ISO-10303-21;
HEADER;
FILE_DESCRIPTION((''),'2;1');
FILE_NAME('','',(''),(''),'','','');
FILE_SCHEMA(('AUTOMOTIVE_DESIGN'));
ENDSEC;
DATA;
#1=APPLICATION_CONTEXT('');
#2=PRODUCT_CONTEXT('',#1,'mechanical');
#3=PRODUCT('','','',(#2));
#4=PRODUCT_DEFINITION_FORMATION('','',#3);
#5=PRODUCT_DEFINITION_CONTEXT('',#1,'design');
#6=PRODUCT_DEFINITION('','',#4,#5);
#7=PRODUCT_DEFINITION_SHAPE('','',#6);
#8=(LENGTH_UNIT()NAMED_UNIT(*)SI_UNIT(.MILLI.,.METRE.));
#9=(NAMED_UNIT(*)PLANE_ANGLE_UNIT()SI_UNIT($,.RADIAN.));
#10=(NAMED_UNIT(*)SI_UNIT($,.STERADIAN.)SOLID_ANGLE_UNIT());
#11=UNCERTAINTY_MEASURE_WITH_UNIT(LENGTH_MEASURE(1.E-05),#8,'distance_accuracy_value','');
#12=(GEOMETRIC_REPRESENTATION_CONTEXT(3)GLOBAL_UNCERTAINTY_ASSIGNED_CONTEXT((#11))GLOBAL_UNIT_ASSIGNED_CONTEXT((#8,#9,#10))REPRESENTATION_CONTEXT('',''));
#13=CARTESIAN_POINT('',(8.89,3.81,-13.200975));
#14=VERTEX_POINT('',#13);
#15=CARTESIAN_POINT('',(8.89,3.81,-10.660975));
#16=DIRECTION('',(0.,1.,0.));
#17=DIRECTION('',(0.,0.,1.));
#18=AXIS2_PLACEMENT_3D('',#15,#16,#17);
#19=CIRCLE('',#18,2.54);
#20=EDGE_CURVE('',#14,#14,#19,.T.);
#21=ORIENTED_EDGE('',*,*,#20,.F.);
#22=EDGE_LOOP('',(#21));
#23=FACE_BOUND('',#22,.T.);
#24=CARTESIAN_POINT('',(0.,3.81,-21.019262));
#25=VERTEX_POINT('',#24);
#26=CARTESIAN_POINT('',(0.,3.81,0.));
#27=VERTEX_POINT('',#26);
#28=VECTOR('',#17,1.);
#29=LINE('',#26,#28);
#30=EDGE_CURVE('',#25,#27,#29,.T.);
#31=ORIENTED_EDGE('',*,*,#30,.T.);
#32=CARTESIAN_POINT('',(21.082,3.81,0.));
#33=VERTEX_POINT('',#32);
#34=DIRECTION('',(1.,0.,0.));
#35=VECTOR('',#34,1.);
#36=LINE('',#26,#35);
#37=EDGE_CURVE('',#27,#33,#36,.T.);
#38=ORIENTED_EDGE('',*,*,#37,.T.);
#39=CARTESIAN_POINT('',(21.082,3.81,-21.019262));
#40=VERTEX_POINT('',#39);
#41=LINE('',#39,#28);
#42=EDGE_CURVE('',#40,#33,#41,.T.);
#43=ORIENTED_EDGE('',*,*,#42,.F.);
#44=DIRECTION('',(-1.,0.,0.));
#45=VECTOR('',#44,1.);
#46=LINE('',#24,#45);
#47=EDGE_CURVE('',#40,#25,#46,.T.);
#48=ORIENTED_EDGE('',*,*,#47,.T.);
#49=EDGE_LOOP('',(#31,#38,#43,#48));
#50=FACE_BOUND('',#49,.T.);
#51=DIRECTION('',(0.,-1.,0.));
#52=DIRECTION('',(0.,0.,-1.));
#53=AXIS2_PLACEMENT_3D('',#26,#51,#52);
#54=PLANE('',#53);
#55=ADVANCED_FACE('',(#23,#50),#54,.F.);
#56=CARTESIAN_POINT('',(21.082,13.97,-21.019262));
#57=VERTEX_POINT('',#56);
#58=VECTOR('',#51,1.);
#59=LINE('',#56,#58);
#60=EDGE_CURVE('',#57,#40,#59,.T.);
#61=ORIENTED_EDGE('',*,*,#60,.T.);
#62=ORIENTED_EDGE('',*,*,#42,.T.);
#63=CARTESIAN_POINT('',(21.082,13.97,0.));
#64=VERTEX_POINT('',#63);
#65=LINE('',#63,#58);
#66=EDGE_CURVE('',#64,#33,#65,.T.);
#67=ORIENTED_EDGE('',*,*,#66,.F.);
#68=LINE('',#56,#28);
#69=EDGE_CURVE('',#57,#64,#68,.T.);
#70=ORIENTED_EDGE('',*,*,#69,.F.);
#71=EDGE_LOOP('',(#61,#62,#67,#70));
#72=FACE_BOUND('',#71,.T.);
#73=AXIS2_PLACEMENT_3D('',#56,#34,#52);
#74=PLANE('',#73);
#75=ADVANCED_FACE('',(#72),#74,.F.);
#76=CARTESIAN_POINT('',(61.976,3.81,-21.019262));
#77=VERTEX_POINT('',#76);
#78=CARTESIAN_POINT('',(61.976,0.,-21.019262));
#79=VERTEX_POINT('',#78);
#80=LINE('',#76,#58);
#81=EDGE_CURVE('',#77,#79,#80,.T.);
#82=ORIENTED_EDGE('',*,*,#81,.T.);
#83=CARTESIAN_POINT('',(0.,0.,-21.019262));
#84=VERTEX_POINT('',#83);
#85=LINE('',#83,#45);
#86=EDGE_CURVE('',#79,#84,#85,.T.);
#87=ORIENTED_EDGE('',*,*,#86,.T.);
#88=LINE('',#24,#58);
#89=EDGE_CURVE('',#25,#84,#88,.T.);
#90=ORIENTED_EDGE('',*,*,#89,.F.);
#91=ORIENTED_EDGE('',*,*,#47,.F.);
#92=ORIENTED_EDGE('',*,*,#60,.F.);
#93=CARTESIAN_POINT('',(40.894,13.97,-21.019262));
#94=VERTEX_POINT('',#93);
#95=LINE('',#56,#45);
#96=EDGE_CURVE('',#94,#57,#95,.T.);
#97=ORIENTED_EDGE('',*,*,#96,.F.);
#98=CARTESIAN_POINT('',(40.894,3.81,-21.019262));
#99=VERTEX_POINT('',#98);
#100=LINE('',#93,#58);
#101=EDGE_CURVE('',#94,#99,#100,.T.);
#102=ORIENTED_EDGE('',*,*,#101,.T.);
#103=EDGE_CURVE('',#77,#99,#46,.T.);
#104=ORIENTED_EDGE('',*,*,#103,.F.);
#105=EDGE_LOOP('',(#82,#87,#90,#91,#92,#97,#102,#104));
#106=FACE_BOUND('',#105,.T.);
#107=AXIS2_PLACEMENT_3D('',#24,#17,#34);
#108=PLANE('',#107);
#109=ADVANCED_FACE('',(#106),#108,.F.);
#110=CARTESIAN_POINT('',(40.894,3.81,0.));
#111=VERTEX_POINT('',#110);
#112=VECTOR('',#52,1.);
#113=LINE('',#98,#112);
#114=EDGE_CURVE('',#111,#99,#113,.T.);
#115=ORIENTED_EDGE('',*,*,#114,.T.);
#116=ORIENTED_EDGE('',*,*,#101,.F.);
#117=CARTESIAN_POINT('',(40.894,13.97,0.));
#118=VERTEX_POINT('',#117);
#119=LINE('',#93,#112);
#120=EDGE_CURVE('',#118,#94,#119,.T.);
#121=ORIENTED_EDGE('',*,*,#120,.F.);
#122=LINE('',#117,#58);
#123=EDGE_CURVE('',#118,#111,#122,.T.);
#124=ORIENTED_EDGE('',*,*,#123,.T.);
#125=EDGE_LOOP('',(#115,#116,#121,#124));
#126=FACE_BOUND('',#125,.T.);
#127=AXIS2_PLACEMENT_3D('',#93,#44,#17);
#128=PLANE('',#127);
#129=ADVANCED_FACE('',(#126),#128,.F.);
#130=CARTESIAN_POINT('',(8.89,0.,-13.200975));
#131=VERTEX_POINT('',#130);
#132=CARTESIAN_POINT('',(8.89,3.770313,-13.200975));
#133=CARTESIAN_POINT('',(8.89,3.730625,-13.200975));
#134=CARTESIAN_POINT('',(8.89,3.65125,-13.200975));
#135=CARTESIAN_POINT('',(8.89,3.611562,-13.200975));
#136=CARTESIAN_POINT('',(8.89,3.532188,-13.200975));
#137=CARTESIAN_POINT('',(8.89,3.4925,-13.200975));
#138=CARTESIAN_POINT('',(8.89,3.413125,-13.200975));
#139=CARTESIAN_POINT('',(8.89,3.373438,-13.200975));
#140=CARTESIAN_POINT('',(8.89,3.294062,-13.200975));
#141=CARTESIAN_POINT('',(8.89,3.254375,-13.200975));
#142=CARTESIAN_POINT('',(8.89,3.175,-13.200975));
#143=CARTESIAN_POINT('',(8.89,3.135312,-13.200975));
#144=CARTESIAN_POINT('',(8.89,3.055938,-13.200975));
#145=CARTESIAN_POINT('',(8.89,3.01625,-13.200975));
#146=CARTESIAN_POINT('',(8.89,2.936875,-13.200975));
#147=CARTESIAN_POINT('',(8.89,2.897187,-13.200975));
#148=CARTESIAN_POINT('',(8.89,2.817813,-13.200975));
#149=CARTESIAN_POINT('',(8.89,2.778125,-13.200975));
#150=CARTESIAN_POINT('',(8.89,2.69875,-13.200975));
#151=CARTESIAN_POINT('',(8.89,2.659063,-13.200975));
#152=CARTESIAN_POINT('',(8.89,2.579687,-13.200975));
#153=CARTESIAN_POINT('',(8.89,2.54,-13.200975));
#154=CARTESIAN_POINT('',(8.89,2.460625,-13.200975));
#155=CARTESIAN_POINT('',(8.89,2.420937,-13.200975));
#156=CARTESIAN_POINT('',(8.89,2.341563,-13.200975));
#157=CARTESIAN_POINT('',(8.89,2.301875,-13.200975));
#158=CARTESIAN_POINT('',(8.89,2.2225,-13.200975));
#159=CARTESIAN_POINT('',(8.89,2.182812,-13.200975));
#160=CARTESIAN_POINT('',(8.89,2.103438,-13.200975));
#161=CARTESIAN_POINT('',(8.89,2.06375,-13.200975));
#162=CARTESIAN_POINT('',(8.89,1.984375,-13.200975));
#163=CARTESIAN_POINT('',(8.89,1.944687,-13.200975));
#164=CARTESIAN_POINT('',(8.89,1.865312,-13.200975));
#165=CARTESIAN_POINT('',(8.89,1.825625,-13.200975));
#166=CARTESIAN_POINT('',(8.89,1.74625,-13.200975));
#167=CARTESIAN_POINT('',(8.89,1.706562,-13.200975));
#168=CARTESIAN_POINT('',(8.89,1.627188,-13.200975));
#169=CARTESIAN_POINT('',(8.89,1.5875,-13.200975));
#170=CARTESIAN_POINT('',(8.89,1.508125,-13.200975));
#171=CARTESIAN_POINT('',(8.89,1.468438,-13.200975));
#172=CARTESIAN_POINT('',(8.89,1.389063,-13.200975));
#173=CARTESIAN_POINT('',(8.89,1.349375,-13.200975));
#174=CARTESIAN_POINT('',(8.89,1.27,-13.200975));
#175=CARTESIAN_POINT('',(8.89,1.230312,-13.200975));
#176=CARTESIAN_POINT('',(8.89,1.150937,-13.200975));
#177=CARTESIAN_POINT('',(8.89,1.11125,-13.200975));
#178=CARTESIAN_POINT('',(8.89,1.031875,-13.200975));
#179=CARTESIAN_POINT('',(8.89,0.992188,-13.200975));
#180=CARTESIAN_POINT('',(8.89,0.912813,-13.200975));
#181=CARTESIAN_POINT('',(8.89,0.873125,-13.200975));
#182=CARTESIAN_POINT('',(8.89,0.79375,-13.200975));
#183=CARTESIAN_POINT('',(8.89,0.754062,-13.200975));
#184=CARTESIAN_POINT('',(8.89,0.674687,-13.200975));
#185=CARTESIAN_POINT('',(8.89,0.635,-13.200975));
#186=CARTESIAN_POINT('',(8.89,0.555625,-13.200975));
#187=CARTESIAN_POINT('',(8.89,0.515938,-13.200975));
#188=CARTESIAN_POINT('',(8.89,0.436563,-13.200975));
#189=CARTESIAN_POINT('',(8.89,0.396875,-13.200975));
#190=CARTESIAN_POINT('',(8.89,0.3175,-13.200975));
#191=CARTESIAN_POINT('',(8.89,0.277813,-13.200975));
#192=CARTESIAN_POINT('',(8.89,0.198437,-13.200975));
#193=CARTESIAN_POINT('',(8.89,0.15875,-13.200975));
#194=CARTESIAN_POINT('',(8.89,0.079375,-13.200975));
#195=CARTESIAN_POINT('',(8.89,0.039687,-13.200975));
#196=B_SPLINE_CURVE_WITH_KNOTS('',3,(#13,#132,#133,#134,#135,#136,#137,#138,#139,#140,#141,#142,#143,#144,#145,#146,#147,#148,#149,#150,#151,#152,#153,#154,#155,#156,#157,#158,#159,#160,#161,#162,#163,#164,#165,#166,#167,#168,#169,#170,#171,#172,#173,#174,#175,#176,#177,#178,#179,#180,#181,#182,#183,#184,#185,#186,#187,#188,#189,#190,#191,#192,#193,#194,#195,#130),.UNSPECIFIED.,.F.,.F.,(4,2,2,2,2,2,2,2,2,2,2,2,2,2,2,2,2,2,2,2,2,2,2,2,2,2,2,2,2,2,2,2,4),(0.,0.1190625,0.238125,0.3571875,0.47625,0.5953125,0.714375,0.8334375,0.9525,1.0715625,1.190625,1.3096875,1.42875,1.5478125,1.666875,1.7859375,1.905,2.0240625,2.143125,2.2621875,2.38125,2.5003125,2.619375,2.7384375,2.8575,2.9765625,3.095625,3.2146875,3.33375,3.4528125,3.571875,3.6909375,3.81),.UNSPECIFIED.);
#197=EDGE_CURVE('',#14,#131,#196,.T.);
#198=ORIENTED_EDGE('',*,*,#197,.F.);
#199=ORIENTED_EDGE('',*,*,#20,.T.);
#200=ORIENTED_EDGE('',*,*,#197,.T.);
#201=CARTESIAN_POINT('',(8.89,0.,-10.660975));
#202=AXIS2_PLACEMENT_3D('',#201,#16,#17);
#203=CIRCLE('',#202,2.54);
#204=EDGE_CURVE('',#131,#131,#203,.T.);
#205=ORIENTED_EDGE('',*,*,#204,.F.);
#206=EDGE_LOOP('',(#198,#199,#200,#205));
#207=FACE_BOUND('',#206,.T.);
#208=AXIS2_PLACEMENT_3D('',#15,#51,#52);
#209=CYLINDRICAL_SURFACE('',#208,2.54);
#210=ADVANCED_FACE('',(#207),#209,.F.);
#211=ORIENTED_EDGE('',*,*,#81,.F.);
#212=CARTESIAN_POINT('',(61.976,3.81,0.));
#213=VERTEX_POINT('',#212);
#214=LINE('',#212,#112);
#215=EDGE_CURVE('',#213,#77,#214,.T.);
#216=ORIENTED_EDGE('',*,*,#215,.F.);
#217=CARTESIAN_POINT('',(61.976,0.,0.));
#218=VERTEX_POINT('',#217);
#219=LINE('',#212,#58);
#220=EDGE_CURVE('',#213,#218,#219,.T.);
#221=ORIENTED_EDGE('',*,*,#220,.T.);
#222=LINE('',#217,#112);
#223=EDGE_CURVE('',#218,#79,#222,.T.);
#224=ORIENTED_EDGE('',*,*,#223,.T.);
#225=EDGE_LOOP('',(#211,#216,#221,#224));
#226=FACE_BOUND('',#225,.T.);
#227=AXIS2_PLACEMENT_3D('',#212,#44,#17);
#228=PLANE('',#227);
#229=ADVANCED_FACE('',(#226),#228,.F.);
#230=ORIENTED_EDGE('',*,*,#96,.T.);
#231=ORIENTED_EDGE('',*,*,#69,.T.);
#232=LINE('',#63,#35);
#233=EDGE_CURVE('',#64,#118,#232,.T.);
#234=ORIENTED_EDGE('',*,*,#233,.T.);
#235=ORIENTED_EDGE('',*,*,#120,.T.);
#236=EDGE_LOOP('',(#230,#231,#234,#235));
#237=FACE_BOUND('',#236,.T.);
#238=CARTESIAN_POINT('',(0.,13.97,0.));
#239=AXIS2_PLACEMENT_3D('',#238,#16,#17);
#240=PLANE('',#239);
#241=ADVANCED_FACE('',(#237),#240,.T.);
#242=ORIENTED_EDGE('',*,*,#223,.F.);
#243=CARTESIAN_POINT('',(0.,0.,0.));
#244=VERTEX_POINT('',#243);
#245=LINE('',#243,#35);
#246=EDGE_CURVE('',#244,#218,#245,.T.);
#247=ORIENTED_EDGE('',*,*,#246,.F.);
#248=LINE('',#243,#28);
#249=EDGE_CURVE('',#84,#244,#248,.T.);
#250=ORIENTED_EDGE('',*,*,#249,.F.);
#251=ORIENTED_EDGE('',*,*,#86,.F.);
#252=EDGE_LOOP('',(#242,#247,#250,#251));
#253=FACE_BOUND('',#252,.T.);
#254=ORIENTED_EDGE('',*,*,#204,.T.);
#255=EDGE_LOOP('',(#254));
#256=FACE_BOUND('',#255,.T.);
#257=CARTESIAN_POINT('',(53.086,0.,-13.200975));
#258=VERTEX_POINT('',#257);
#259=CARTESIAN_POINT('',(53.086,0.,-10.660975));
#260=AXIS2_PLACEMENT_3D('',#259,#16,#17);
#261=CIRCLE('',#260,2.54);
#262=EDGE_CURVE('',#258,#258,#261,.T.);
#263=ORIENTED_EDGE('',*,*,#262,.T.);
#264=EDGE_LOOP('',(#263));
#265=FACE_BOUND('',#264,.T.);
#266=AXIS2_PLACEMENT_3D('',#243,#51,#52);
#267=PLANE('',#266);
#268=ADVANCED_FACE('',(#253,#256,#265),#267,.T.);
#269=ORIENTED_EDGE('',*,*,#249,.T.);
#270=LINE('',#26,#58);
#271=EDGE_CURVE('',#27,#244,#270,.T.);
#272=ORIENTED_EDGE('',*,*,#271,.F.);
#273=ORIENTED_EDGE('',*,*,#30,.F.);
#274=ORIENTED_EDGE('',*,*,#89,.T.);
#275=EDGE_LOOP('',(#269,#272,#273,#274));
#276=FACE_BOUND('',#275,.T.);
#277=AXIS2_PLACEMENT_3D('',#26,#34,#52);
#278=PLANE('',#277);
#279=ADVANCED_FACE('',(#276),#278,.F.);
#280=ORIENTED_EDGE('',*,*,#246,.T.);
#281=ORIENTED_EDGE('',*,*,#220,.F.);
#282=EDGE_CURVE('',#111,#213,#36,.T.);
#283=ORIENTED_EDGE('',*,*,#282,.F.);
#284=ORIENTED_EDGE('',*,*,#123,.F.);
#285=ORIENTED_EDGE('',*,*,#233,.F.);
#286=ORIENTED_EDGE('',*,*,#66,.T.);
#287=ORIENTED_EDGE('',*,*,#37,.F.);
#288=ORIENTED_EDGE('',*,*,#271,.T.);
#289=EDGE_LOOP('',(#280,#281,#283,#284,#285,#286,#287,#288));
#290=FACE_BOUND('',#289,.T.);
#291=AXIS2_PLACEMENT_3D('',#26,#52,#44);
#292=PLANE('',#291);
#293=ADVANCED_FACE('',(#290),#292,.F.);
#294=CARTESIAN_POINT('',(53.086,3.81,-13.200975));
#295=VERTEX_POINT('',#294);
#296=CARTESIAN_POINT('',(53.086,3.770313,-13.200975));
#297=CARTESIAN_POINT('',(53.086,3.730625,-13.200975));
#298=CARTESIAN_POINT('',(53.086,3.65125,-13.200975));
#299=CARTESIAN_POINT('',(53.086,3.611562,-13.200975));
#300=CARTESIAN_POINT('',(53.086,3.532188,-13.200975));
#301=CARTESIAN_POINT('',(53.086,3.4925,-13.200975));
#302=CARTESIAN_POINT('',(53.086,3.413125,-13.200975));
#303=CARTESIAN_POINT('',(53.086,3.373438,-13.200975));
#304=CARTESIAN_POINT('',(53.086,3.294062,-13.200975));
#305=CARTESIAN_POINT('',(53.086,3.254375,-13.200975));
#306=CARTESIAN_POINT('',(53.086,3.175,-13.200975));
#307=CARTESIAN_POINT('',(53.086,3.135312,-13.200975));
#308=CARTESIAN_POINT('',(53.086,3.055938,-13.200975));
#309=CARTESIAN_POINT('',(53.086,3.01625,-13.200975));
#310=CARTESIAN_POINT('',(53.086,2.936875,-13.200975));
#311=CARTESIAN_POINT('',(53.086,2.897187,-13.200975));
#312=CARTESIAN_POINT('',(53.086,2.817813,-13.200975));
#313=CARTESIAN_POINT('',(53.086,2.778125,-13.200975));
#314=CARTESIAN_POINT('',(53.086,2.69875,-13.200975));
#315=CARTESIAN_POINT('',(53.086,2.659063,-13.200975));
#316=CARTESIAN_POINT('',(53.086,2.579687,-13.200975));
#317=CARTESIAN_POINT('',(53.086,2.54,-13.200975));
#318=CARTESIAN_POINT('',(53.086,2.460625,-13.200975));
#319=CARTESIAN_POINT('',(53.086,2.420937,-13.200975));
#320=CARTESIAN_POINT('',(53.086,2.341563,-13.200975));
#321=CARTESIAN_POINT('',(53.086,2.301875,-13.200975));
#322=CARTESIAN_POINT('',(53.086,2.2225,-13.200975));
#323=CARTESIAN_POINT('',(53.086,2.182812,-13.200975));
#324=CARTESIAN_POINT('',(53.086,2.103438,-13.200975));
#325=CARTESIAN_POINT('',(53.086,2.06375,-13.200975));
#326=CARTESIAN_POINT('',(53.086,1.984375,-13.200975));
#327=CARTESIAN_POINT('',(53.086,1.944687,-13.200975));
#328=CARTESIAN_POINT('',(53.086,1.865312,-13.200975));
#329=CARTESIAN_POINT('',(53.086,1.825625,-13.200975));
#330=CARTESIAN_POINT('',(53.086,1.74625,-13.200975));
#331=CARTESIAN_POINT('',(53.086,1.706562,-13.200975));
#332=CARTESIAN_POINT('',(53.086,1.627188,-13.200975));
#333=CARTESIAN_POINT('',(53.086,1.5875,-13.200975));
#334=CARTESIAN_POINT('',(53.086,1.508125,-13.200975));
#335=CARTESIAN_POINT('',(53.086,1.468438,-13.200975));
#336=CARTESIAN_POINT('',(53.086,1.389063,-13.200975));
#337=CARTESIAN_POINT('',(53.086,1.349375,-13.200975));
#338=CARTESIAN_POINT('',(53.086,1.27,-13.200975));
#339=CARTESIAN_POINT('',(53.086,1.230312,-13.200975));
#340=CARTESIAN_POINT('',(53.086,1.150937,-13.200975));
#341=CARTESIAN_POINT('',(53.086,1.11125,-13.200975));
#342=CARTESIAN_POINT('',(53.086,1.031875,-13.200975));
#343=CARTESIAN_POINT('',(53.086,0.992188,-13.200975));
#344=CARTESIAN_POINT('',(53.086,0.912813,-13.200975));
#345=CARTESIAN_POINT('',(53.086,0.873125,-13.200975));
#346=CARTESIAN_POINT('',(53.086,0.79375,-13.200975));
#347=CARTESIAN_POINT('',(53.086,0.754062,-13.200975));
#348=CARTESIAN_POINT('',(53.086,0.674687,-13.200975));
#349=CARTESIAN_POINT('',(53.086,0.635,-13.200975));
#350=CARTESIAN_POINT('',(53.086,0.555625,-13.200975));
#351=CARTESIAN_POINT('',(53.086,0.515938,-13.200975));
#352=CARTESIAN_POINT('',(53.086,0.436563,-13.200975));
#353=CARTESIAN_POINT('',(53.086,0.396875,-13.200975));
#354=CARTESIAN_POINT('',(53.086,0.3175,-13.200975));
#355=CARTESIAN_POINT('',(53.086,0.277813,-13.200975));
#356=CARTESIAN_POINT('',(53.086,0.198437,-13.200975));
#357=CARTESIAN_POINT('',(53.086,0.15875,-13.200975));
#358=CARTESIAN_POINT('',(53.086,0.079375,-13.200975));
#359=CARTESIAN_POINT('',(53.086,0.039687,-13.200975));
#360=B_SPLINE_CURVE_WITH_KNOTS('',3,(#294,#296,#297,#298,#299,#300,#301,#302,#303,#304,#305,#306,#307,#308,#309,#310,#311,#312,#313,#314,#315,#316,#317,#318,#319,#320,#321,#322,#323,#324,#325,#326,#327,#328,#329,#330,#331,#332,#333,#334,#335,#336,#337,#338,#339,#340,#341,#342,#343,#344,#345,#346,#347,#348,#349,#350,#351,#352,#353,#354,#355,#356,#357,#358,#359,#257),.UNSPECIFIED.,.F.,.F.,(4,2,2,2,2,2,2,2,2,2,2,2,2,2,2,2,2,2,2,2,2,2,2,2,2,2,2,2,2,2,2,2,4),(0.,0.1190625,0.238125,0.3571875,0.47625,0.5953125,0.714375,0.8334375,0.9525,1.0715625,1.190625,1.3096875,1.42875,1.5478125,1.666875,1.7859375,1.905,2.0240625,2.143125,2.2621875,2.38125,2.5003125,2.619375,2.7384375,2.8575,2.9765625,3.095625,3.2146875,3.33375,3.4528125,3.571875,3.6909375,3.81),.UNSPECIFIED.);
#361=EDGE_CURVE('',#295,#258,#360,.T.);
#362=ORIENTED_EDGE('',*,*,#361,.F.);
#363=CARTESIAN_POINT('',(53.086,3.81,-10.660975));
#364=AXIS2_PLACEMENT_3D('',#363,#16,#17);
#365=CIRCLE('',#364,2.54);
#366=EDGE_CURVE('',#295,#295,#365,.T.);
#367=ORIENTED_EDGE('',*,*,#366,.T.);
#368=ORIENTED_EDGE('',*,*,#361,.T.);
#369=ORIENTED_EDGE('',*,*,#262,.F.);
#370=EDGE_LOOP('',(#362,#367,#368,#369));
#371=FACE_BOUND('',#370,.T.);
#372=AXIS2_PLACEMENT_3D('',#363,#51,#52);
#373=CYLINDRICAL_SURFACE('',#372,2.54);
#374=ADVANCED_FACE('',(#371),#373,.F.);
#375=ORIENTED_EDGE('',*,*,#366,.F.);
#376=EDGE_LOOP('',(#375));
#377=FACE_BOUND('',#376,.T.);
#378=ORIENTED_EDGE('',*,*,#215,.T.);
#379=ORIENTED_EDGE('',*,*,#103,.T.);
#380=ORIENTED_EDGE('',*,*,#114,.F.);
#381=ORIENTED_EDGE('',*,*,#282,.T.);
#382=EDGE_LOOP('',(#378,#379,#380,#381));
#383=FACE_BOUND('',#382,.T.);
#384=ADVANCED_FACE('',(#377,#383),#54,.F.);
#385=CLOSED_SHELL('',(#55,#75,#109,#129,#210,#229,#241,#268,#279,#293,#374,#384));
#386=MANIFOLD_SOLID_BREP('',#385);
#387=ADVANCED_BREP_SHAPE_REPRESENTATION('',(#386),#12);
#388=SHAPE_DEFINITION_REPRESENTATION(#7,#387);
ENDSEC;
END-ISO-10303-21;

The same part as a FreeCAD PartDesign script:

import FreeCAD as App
import Part
import Sketcher
Q = App.Units.Quantity


def add_polygon(sketch, points):
    """Adds a closed chain of lines whose ends are joined by coincident constraints."""
    first, n = sketch.GeometryCount, len(points)
    for a, b in zip(points, points[1:] + points[:1]):
        sketch.addGeometry(Part.LineSegment(App.Vector(*a, 0), App.Vector(*b, 0)), False)
    for i in range(n):
        sketch.addConstraint(Sketcher.Constraint("Coincident", first + i, 2, first + (i + 1) % n, 1))

doc = App.newDocument("Part")
body = doc.addObject("PartDesign::Body", "Body")

# Sketch on XZ plane
sketch1 = body.newObject("Sketcher::SketchObject", "Sketch")
sketch1.AttachmentSupport = (doc.getObject("XZ_Plane"), [""])
sketch1.MapMode = "FlatFace"
add_polygon(sketch1, [(0, -21), (0, 0), (62, 0), (62, -21)])  # lines 0-3
sketch1.addGeometry(Part.Circle(App.Vector(8.9, -10.7, 0), App.Vector(0, 0, 1), 2.5), False)  # 4
sketch1.addGeometry(Part.Circle(App.Vector(53.1, -10.7, 0), App.Vector(0, 0, 1), 2.5), False)  # 5
sketch1.addConstraint(Sketcher.Constraint("Vertical", 0))
sketch1.addConstraint(Sketcher.Constraint("Horizontal", 1))
sketch1.addConstraint(Sketcher.Constraint("Vertical", 2))
sketch1.addConstraint(Sketcher.Constraint("Horizontal", 3))
sketch1.addConstraint(Sketcher.Constraint("Coincident", 0, 2, -1, 1))
sketch1.addConstraint(Sketcher.Constraint("Equal", 4, 5))
sketch1.addConstraint(Sketcher.Constraint("Horizontal", 4, 3, 5, 3))
sketch1.addConstraint(Sketcher.Constraint("Diameter", 4, Q("0.2 in")))
sketch1.addConstraint(Sketcher.Constraint("DistanceX", 1, 1, 1, 2, Q("2.44 in")))
sketch1.addConstraint(Sketcher.Constraint("DistanceX", -1, 1, 4, 3, Q("0.35 in")))
sketch1.addConstraint(Sketcher.Constraint("DistanceX", -1, 1, 5, 3, Q("2.09 in")))
sketch1.addConstraint(Sketcher.Constraint("DistanceY", 0, 1, 0, 2, 21.019262))
sketch1.addConstraint(Sketcher.Constraint("DistanceY", 4, 3, -1, 1, 10.660975))
pad1 = body.newObject("PartDesign::Pad", "Pad")
pad1.Profile = sketch1
pad1.Length = Q("0.15 in")
pad1.Reversed = True

# Sketch on XZ plane
sketch2 = body.newObject("Sketcher::SketchObject", "Sketch001")
sketch2.AttachmentSupport = (doc.getObject("XZ_Plane"), [""])
sketch2.MapMode = "FlatFace"
sketch2.AttachmentOffset = App.Placement(App.Vector(0, 0, -0.15 * 25.4), App.Rotation())
add_polygon(sketch2, [(21, -21), (21, 0), (41, 0), (41, -21)])  # lines 0-3
sketch2.addConstraint(Sketcher.Constraint("Vertical", 0))
sketch2.addConstraint(Sketcher.Constraint("Horizontal", 1))
sketch2.addConstraint(Sketcher.Constraint("Vertical", 2))
sketch2.addConstraint(Sketcher.Constraint("Horizontal", 3))
sketch2.addConstraint(Sketcher.Constraint("PointOnObject", 0, 2, -1))
sketch2.addConstraint(Sketcher.Constraint("DistanceX", 1, 1, 1, 2, Q("0.78 in")))
sketch2.addConstraint(Sketcher.Constraint("DistanceX", -1, 1, 0, 2, Q("0.83 in")))
sketch2.addConstraint(Sketcher.Constraint("DistanceY", 0, 1, 0, 2, 21.019262))
pad2 = body.newObject("PartDesign::Pad", "Pad001")
pad2.Profile = sketch2
pad2.Length = Q("0.4 in")
pad2.Reversed = True

doc.recompute()
